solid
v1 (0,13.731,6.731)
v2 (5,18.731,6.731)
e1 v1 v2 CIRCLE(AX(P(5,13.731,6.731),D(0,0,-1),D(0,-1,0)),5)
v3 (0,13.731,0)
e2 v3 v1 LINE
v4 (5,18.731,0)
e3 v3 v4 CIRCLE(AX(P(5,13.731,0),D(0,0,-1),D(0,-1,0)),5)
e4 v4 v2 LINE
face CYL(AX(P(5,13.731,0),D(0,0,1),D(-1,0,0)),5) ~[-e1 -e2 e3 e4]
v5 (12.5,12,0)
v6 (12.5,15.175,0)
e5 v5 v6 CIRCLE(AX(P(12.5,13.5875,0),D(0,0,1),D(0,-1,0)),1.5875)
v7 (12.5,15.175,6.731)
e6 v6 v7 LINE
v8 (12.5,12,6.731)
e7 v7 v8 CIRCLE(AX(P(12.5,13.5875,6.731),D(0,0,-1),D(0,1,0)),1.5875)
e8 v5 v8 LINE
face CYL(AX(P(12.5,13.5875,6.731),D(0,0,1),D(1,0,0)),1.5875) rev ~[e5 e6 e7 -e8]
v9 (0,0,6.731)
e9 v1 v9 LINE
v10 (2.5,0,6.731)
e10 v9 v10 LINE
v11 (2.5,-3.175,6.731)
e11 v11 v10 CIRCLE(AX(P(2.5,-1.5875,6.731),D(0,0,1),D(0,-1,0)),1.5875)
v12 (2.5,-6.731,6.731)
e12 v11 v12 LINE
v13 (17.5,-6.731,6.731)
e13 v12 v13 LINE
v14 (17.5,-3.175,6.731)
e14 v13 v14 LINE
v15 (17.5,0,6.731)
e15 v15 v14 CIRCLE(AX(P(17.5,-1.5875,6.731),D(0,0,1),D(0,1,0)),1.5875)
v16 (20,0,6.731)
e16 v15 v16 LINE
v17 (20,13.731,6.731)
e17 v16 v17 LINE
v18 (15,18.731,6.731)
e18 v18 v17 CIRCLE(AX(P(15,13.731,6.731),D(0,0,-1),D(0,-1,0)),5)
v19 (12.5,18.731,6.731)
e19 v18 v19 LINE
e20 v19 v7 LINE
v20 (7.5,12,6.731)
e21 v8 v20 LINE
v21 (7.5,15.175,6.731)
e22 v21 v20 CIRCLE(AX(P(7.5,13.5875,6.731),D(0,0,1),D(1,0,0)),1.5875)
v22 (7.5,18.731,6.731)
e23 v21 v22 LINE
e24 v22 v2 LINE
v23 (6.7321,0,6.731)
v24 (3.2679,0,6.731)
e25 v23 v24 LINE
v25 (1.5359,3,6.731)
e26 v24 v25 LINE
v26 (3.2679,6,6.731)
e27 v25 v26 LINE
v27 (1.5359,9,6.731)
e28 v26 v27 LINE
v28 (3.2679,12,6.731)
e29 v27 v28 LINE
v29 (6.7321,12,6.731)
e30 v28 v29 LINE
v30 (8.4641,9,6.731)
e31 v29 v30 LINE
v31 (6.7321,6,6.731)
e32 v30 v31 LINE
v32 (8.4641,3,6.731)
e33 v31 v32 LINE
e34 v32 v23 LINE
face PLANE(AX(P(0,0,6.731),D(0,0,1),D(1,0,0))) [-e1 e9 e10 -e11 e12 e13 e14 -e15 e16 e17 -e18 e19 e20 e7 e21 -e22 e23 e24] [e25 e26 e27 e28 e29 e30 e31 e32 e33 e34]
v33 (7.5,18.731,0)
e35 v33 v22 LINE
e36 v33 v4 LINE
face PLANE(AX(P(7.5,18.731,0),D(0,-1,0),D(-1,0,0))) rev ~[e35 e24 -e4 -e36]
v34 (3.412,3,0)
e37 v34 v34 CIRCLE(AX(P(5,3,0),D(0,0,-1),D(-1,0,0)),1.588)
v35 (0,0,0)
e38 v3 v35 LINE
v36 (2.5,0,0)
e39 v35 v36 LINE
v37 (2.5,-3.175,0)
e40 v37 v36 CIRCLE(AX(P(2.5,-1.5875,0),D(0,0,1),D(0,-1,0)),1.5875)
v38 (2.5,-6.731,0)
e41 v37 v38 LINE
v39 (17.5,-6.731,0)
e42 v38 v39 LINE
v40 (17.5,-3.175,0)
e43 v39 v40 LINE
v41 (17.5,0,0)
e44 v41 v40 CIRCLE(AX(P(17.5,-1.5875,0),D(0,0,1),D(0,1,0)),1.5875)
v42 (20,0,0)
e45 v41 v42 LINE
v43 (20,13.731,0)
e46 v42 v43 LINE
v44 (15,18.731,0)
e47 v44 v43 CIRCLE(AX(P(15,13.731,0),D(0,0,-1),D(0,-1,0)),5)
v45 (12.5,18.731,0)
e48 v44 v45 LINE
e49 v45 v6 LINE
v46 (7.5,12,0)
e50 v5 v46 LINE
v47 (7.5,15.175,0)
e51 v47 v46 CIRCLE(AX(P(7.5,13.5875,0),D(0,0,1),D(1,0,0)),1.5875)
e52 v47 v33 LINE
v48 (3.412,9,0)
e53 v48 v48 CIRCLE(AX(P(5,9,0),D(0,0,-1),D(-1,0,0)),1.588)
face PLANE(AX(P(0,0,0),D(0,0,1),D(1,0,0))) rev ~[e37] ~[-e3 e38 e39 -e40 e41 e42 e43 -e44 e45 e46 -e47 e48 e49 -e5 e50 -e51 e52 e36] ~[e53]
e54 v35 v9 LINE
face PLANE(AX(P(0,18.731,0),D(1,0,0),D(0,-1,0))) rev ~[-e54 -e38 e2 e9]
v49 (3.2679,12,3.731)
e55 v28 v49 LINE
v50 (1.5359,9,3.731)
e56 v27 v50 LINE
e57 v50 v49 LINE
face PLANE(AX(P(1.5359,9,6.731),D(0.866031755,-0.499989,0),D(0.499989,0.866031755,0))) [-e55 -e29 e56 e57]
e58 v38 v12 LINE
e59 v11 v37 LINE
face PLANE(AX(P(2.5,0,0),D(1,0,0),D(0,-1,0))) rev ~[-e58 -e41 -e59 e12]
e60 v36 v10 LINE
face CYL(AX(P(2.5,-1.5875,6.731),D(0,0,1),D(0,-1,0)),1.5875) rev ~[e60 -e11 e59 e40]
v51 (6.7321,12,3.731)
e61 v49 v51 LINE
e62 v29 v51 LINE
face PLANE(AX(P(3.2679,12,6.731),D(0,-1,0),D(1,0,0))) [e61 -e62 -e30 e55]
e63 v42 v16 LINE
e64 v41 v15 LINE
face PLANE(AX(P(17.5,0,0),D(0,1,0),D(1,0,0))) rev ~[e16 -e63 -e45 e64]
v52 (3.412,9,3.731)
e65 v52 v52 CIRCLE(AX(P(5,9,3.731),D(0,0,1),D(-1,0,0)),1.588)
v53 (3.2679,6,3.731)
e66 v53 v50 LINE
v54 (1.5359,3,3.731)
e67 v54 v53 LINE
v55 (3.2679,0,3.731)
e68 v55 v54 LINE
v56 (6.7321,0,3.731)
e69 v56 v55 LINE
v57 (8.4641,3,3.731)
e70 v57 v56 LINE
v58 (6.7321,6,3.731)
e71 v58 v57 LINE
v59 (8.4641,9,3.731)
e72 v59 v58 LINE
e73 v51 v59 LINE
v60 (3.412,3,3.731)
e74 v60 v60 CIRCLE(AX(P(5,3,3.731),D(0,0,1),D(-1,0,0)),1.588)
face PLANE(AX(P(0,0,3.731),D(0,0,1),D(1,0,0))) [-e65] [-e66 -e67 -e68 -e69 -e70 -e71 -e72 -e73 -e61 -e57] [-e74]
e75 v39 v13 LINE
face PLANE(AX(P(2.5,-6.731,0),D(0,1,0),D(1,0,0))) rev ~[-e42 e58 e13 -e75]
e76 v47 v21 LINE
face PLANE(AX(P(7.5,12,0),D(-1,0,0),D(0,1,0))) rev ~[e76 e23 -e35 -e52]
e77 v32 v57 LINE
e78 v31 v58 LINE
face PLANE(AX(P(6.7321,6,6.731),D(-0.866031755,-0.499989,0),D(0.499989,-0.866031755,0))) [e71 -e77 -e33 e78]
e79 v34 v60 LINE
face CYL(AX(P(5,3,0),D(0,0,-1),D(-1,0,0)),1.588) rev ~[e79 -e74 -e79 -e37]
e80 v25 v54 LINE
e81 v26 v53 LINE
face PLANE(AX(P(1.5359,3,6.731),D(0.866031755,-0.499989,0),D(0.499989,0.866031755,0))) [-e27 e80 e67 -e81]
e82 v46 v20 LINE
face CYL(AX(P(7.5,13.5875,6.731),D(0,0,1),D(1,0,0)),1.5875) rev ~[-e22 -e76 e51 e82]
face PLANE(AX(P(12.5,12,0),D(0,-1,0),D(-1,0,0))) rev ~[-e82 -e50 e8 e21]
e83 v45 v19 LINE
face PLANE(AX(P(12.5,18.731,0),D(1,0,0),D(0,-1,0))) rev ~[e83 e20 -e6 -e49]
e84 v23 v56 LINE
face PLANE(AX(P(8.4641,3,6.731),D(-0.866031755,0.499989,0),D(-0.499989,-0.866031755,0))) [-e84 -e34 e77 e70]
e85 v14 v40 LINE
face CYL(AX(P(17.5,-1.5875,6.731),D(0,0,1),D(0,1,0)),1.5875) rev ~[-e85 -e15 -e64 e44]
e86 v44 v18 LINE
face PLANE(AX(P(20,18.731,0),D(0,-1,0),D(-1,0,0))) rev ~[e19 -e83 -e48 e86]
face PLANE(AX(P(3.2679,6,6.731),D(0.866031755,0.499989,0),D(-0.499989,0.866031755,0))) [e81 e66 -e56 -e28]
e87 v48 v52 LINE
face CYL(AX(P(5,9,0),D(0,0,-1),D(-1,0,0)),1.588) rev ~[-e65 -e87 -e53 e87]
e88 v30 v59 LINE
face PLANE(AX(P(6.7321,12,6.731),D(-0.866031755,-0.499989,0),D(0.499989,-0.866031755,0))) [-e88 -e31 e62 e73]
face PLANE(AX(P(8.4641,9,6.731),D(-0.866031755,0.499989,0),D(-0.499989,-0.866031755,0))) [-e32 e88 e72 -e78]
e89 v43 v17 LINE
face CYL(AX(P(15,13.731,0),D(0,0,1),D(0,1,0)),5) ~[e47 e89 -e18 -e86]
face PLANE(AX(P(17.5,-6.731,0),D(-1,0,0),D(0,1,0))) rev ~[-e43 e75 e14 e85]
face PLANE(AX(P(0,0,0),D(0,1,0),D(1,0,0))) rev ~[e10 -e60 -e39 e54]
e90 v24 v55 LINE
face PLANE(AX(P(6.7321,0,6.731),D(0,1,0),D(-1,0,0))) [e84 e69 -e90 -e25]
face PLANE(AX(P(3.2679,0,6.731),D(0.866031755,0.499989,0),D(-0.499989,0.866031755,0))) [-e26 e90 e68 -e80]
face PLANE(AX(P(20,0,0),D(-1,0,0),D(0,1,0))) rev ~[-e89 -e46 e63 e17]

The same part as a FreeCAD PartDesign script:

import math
import FreeCAD as App
import Part
import Sketcher
Q = App.Units.Quantity


def edges_at(feature, points):
    """Names of the edges that pass closest to the given points."""
    edges = feature.Shape.Edges
    near = lambda p: min(range(len(edges)), key=lambda i: edges[i].distToShape(Part.Vertex(*p))[0])
    return sorted({f"Edge{near(p) + 1}" for p in points})

doc = App.newDocument("Part")
params = doc.addObject("Spreadsheet::Sheet", "Params")
for row, (alias, value) in enumerate([
    ("sketch1_width", "15 mm"),
    ("sketch1_width2", "5 mm"),
    ("pad1_length", "6.731 mm"),
    ("fillet_radius", "5 mm"),
    ("pocket2_length", "3 mm"),
], start=1):
    params.set(f"A{row}", alias)
    params.set(f"B{row}", "=" + value)
    params.setAlias(f"B{row}", alias)

body = doc.addObject("PartDesign::Body", "Body")

sketch1 = body.newObject("Sketcher::SketchObject", "Sketch")
sketch1.AttachmentSupport = (doc.getObject("XY_Plane"), [""])
sketch1.MapMode = "FlatFace"
sketch1.addGeometry(Part.LineSegment(App.Vector(0, 18.7, 0), App.Vector(0, 0, 0)), False)
sketch1.addGeometry(Part.LineSegment(App.Vector(0, 0, 0), App.Vector(2.5, 0, 0)), False)
sketch1.addGeometry(Part.LineSegment(App.Vector(2.5, 0, 0), App.Vector(2.5, -6.7, 0)), False)
sketch1.addGeometry(Part.LineSegment(App.Vector(2.5, -6.7, 0), App.Vector(17.5, -6.7, 0)), False)
sketch1.addGeometry(Part.LineSegment(App.Vector(17.5, -6.7, 0), App.Vector(17.5, 0, 0)), False)
sketch1.addGeometry(Part.LineSegment(App.Vector(17.5, 0, 0), App.Vector(20, 0, 0)), False)
sketch1.addGeometry(Part.LineSegment(App.Vector(20, 0, 0), App.Vector(20, 18.7, 0)), False)
sketch1.addGeometry(Part.LineSegment(App.Vector(20, 18.7, 0), App.Vector(12.5, 18.7, 0)), False)
sketch1.addGeometry(Part.LineSegment(App.Vector(12.5, 18.7, 0), App.Vector(12.5, 12, 0)), False)
sketch1.addGeometry(Part.LineSegment(App.Vector(12.5, 12, 0), App.Vector(7.5, 12, 0)), False)
sketch1.addGeometry(Part.LineSegment(App.Vector(7.5, 12, 0), App.Vector(7.5, 18.7, 0)), False)
sketch1.addGeometry(Part.LineSegment(App.Vector(7.5, 18.7, 0), App.Vector(0, 18.7, 0)), False)
sketch1.addConstraint(Sketcher.Constraint("Coincident", 0, 2, 1, 1))
sketch1.addConstraint(Sketcher.Constraint("Coincident", 1, 2, 2, 1))
sketch1.addConstraint(Sketcher.Constraint("Coincident", 2, 2, 3, 1))
sketch1.addConstraint(Sketcher.Constraint("Coincident", 3, 2, 4, 1))
sketch1.addConstraint(Sketcher.Constraint("Coincident", 4, 2, 5, 1))
sketch1.addConstraint(Sketcher.Constraint("Coincident", 5, 2, 6, 1))
sketch1.addConstraint(Sketcher.Constraint("Coincident", 6, 2, 7, 1))
sketch1.addConstraint(Sketcher.Constraint("Coincident", 7, 2, 8, 1))
sketch1.addConstraint(Sketcher.Constraint("Coincident", 8, 2, 9, 1))
sketch1.addConstraint(Sketcher.Constraint("Coincident", 9, 2, 10, 1))
sketch1.addConstraint(Sketcher.Constraint("Coincident", 10, 2, 11, 1))
sketch1.addConstraint(Sketcher.Constraint("Coincident", 11, 2, 0, 1))
sketch1.addConstraint(Sketcher.Constraint("Vertical", 0))
sketch1.addConstraint(Sketcher.Constraint("Horizontal", 1))
sketch1.addConstraint(Sketcher.Constraint("Vertical", 2))
sketch1.addConstraint(Sketcher.Constraint("Horizontal", 3))
sketch1.addConstraint(Sketcher.Constraint("Vertical", 4))
sketch1.addConstraint(Sketcher.Constraint("Horizontal", 5))
sketch1.addConstraint(Sketcher.Constraint("Vertical", 6))
sketch1.addConstraint(Sketcher.Constraint("Horizontal", 7))
sketch1.addConstraint(Sketcher.Constraint("Vertical", 8))
sketch1.addConstraint(Sketcher.Constraint("Horizontal", 9))
sketch1.addConstraint(Sketcher.Constraint("Vertical", 10))
sketch1.addConstraint(Sketcher.Constraint("Horizontal", 11))
sketch1.addConstraint(Sketcher.Constraint("Coincident", 0, 2, -1, 1))
sketch1.addConstraint(Sketcher.Constraint("PointOnObject", 4, 2, -1))
sketch1.addConstraint(Sketcher.Constraint("Horizontal", 7, 2, 10, 2))
sketch1.addConstraint(Sketcher.Constraint("Equal", 1, 5))
sketch1.addConstraint(Sketcher.Constraint("Equal", 7, 11))
sketch1.addConstraint(Sketcher.Constraint("Equal", 4, 8))
sketch1.addConstraint(Sketcher.Constraint("DistanceX", 3, 1, 3, 2, 15.0))
sketch1.addConstraint(Sketcher.Constraint("DistanceX", 9, 2, 9, 1, 5.0))
sketch1.addConstraint(Sketcher.Constraint("DistanceX", -1, 1, 5, 2, 20.0))
sketch1.addConstraint(Sketcher.Constraint("DistanceY", -1, 1, 8, 2, 12.0))
sketch1.addConstraint(Sketcher.Constraint("DistanceY", 2, 2, 2, 1, 6.731))
sketch1.setExpression("Constraints[30]", "Params.sketch1_width")
sketch1.setExpression("Constraints[31]", "Params.sketch1_width2")
pad1 = body.newObject("PartDesign::Pad", "Pad")
pad1.Profile = sketch1
pad1.setExpression("Length", "Params.pad1_length")

sketch2 = body.newObject("Sketcher::SketchObject", "Sketch001")
sketch2.AttachmentSupport = (doc.getObject("XY_Plane"), [""])
sketch2.MapMode = "FlatFace"
sketch2.addGeometry(Part.Circle(App.Vector(5, 3, 0), App.Vector(0, 0, 1), 1.6), False)
sketch2.addGeometry(Part.Circle(App.Vector(5, 9, 0), App.Vector(0, 0, 1), 1.6), False)
sketch2.addConstraint(Sketcher.Constraint("Equal", 0, 1))
sketch2.addConstraint(Sketcher.Constraint("Vertical", 0, 3, 1, 3))
sketch2.addConstraint(Sketcher.Constraint("Diameter", 0, 3.176))
sketch2.addConstraint(Sketcher.Constraint("DistanceX", -1, 1, 0, 3, 5.0))
sketch2.addConstraint(Sketcher.Constraint("DistanceY", -1, 1, 0, 3, 3.0))
sketch2.addConstraint(Sketcher.Constraint("DistanceY", 0, 3, 1, 3, 6.0))
pocket1 = body.newObject("PartDesign::Pocket", "Pocket")
pocket1.Profile = sketch2
pocket1.Type = "UpToFirst"
pocket1.Reversed = True
doc.recompute()

fillet = body.newObject("PartDesign::Fillet", "Fillet")
fillet.Base = (pocket1, edges_at(pocket1, [(0, 18.731, 3.365), (20, 18.731, 3.365)]))
fillet.setExpression("Radius", "Params.fillet_radius")

sketch3 = body.newObject("Sketcher::SketchObject", "Sketch002")
sketch3.AttachmentSupport = (doc.getObject("XY_Plane"), [""])
sketch3.MapMode = "FlatFace"
sketch3.AttachmentOffset = App.Placement(App.Vector(0, 0, 6.731), App.Rotation())
sketch3.addGeometry(Part.LineSegment(App.Vector(6.7, 6, 0), App.Vector(8.5, 9, 0)), False)
sketch3.addGeometry(Part.LineSegment(App.Vector(8.5, 9, 0), App.Vector(6.7, 12, 0)), False)
sketch3.addGeometry(Part.LineSegment(App.Vector(6.7, 12, 0), App.Vector(3.3, 12, 0)), False)
sketch3.addGeometry(Part.LineSegment(App.Vector(3.3, 12, 0), App.Vector(1.5, 9, 0)), False)
sketch3.addGeometry(Part.LineSegment(App.Vector(1.5, 9, 0), App.Vector(3.3, 6, 0)), False)
sketch3.addGeometry(Part.LineSegment(App.Vector(3.3, 6, 0), App.Vector(1.5, 3, 0)), False)
sketch3.addGeometry(Part.LineSegment(App.Vector(1.5, 3, 0), App.Vector(3.3, 0, 0)), False)
sketch3.addGeometry(Part.LineSegment(App.Vector(3.3, 0, 0), App.Vector(6.7, 0, 0)), False)
sketch3.addGeometry(Part.LineSegment(App.Vector(6.7, 0, 0), App.Vector(8.5, 3, 0)), False)
sketch3.addGeometry(Part.LineSegment(App.Vector(8.5, 3, 0), App.Vector(6.7, 6, 0)), False)
sketch3.addGeometry(Part.Circle(App.Vector(5, 9, 0), App.Vector(0, 0, 1), 1.6), False)
sketch3.addGeometry(Part.Circle(App.Vector(5, 3, 0), App.Vector(0, 0, 1), 1.6), False)
sketch3.addConstraint(Sketcher.Constraint("Coincident", 0, 2, 1, 1))
sketch3.addConstraint(Sketcher.Constraint("Coincident", 1, 2, 2, 1))
sketch3.addConstraint(Sketcher.Constraint("Coincident", 2, 2, 3, 1))
sketch3.addConstraint(Sketcher.Constraint("Coincident", 3, 2, 4, 1))
sketch3.addConstraint(Sketcher.Constraint("Coincident", 4, 2, 5, 1))
sketch3.addConstraint(Sketcher.Constraint("Coincident", 5, 2, 6, 1))
sketch3.addConstraint(Sketcher.Constraint("Coincident", 6, 2, 7, 1))
sketch3.addConstraint(Sketcher.Constraint("Coincident", 7, 2, 8, 1))
sketch3.addConstraint(Sketcher.Constraint("Coincident", 8, 2, 9, 1))
sketch3.addConstraint(Sketcher.Constraint("Coincident", 9, 2, 0, 1))
sketch3.addConstraint(Sketcher.Constraint("Horizontal", 2))
sketch3.addConstraint(Sketcher.Constraint("Horizontal", 7))
sketch3.addConstraint(Sketcher.Constraint("Equal", 10, 11))
sketch3.addConstraint(Sketcher.Constraint("PointOnObject", 6, 2, -1))
sketch3.addConstraint(Sketcher.Constraint("Parallel", 0, 3))
sketch3.addConstraint(Sketcher.Constraint("Parallel", 1, 4))
sketch3.addConstraint(Sketcher.Constraint("Parallel", 3, 5))
sketch3.addConstraint(Sketcher.Constraint("Parallel", 4, 6))
sketch3.addConstraint(Sketcher.Constraint("Parallel", 5, 8))
sketch3.addConstraint(Sketcher.Constraint("Parallel", 6, 9))
sketch3.addConstraint(Sketcher.Constraint("Horizontal", 10, 3, 0, 2))
sketch3.addConstraint(Sketcher.Constraint("Horizontal", 0, 2, 3, 2))
sketch3.addConstraint(Sketcher.Constraint("Horizontal", 11, 3, 5, 2))
sketch3.addConstraint(Sketcher.Constraint("Horizontal", 5, 2, 8, 2))
sketch3.addConstraint(Sketcher.Constraint("Horizontal", 4, 2, 9, 2))
sketch3.addConstraint(Sketcher.Constraint("Vertical", 10, 3, 11, 3))
sketch3.addConstraint(Sketcher.Constraint("Vertical", 2, 2, 4, 2))
sketch3.addConstraint(Sketcher.Constraint("Vertical", 3, 2, 5, 2))
sketch3.addConstraint(Sketcher.Constraint("Vertical", 4, 2, 6, 2))
sketch3.addConstraint(Sketcher.Constraint("Vertical", 1, 2, 7, 2))
sketch3.addConstraint(Sketcher.Constraint("DistanceY", -1, 1, 4, 2, 6.0))
sketch3.addConstraint(Sketcher.Constraint("Angle", 0, Q("60.0007 deg")))
sketch3.addConstraint(Sketcher.Constraint("Diameter", 10, 3.176))
sketch3.addConstraint(Sketcher.Constraint("DistanceX", -1, 1, 10, 3, 5.0))
sketch3.addConstraint(Sketcher.Constraint("DistanceX", 2, 2, 2, 1, 3.4642))
sketch3.addConstraint(Sketcher.Constraint("DistanceX", -1, 1, 0, 2, 8.464))
pocket2 = body.newObject("PartDesign::Pocket", "Pocket001")
pocket2.Profile = sketch3
pocket2.setExpression("Length", "Params.pocket2_length")

sketch4 = body.newObject("Sketcher::SketchObject", "Sketch003")
sketch4.AttachmentSupport = (doc.getObject("XY_Plane"), [""])
sketch4.MapMode = "FlatFace"
sketch4.AttachmentOffset = App.Placement(App.Vector(0, 0, 6.731), App.Rotation())
sketch4.addGeometry(Part.Circle(App.Vector(7.5, 13.6, 0), App.Vector(0, 0, 1), 1.6), False)
sketch4.addGeometry(Part.Circle(App.Vector(12.5, 13.6, 0), App.Vector(0, 0, 1), 1.6), False)
sketch4.addGeometry(Part.ArcOfCircle(Part.Circle(App.Vector(2.5, -1.6, 0), App.Vector(0, 0, 1), 1.6), math.radians(-90), math.radians(90)), False)
sketch4.addGeometry(Part.LineSegment(App.Vector(2.5, 0, 0), App.Vector(2.5, -3.2, 0)), False)
sketch4.addGeometry(Part.ArcOfCircle(Part.Circle(App.Vector(17.5, -1.6, 0), App.Vector(0, 0, 1), 1.6), math.radians(90), math.radians(270)), False)
sketch4.addGeometry(Part.LineSegment(App.Vector(17.5, -3.2, 0), App.Vector(17.5, 0, 0)), False)
sketch4.addConstraint(Sketcher.Constraint("Coincident", 2, 1, 3, 2))
sketch4.addConstraint(Sketcher.Constraint("Coincident", 3, 1, 2, 2))
sketch4.addConstraint(Sketcher.Constraint("Coincident", 4, 1, 5, 2))
sketch4.addConstraint(Sketcher.Constraint("Coincident", 5, 1, 4, 2))
sketch4.addConstraint(Sketcher.Constraint("Vertical", 3))
sketch4.addConstraint(Sketcher.Constraint("Vertical", 5))
sketch4.addConstraint(Sketcher.Constraint("Equal", 0, 1))
sketch4.addConstraint(Sketcher.Constraint("Equal", 1, 2))
sketch4.addConstraint(Sketcher.Constraint("Equal", 2, 4))
sketch4.addConstraint(Sketcher.Constraint("PointOnObject", 3, 1, -1))
sketch4.addConstraint(Sketcher.Constraint("PointOnObject", 4, 1, -1))
sketch4.addConstraint(Sketcher.Constraint("Horizontal", 0, 3, 1, 3))
sketch4.addConstraint(Sketcher.Constraint("Diameter", 0, 3.175))
sketch4.addConstraint(Sketcher.Constraint("DistanceX", 0, 3, 1, 3, 5.0))
sketch4.addConstraint(Sketcher.Constraint("DistanceX", 2, 3, 0, 3, 5.0))
sketch4.addConstraint(Sketcher.Constraint("DistanceX", 2, 3, 4, 3, 15.0))
sketch4.addConstraint(Sketcher.Constraint("DistanceX", 2, 1, 4, 3, 15.0))
sketch4.addConstraint(Sketcher.Constraint("DistanceX", 1, 3, 4, 1, 5.0))
sketch4.addConstraint(Sketcher.Constraint("DistanceX", -1, 1, 0, 3, 7.5))
sketch4.addConstraint(Sketcher.Constraint("DistanceY", 2, 3, 0, 3, 15.175))
pocket3 = body.newObject("PartDesign::Pocket", "Pocket002")
pocket3.Profile = sketch4
pocket3.Type = "UpToFirst"

doc.recompute()
